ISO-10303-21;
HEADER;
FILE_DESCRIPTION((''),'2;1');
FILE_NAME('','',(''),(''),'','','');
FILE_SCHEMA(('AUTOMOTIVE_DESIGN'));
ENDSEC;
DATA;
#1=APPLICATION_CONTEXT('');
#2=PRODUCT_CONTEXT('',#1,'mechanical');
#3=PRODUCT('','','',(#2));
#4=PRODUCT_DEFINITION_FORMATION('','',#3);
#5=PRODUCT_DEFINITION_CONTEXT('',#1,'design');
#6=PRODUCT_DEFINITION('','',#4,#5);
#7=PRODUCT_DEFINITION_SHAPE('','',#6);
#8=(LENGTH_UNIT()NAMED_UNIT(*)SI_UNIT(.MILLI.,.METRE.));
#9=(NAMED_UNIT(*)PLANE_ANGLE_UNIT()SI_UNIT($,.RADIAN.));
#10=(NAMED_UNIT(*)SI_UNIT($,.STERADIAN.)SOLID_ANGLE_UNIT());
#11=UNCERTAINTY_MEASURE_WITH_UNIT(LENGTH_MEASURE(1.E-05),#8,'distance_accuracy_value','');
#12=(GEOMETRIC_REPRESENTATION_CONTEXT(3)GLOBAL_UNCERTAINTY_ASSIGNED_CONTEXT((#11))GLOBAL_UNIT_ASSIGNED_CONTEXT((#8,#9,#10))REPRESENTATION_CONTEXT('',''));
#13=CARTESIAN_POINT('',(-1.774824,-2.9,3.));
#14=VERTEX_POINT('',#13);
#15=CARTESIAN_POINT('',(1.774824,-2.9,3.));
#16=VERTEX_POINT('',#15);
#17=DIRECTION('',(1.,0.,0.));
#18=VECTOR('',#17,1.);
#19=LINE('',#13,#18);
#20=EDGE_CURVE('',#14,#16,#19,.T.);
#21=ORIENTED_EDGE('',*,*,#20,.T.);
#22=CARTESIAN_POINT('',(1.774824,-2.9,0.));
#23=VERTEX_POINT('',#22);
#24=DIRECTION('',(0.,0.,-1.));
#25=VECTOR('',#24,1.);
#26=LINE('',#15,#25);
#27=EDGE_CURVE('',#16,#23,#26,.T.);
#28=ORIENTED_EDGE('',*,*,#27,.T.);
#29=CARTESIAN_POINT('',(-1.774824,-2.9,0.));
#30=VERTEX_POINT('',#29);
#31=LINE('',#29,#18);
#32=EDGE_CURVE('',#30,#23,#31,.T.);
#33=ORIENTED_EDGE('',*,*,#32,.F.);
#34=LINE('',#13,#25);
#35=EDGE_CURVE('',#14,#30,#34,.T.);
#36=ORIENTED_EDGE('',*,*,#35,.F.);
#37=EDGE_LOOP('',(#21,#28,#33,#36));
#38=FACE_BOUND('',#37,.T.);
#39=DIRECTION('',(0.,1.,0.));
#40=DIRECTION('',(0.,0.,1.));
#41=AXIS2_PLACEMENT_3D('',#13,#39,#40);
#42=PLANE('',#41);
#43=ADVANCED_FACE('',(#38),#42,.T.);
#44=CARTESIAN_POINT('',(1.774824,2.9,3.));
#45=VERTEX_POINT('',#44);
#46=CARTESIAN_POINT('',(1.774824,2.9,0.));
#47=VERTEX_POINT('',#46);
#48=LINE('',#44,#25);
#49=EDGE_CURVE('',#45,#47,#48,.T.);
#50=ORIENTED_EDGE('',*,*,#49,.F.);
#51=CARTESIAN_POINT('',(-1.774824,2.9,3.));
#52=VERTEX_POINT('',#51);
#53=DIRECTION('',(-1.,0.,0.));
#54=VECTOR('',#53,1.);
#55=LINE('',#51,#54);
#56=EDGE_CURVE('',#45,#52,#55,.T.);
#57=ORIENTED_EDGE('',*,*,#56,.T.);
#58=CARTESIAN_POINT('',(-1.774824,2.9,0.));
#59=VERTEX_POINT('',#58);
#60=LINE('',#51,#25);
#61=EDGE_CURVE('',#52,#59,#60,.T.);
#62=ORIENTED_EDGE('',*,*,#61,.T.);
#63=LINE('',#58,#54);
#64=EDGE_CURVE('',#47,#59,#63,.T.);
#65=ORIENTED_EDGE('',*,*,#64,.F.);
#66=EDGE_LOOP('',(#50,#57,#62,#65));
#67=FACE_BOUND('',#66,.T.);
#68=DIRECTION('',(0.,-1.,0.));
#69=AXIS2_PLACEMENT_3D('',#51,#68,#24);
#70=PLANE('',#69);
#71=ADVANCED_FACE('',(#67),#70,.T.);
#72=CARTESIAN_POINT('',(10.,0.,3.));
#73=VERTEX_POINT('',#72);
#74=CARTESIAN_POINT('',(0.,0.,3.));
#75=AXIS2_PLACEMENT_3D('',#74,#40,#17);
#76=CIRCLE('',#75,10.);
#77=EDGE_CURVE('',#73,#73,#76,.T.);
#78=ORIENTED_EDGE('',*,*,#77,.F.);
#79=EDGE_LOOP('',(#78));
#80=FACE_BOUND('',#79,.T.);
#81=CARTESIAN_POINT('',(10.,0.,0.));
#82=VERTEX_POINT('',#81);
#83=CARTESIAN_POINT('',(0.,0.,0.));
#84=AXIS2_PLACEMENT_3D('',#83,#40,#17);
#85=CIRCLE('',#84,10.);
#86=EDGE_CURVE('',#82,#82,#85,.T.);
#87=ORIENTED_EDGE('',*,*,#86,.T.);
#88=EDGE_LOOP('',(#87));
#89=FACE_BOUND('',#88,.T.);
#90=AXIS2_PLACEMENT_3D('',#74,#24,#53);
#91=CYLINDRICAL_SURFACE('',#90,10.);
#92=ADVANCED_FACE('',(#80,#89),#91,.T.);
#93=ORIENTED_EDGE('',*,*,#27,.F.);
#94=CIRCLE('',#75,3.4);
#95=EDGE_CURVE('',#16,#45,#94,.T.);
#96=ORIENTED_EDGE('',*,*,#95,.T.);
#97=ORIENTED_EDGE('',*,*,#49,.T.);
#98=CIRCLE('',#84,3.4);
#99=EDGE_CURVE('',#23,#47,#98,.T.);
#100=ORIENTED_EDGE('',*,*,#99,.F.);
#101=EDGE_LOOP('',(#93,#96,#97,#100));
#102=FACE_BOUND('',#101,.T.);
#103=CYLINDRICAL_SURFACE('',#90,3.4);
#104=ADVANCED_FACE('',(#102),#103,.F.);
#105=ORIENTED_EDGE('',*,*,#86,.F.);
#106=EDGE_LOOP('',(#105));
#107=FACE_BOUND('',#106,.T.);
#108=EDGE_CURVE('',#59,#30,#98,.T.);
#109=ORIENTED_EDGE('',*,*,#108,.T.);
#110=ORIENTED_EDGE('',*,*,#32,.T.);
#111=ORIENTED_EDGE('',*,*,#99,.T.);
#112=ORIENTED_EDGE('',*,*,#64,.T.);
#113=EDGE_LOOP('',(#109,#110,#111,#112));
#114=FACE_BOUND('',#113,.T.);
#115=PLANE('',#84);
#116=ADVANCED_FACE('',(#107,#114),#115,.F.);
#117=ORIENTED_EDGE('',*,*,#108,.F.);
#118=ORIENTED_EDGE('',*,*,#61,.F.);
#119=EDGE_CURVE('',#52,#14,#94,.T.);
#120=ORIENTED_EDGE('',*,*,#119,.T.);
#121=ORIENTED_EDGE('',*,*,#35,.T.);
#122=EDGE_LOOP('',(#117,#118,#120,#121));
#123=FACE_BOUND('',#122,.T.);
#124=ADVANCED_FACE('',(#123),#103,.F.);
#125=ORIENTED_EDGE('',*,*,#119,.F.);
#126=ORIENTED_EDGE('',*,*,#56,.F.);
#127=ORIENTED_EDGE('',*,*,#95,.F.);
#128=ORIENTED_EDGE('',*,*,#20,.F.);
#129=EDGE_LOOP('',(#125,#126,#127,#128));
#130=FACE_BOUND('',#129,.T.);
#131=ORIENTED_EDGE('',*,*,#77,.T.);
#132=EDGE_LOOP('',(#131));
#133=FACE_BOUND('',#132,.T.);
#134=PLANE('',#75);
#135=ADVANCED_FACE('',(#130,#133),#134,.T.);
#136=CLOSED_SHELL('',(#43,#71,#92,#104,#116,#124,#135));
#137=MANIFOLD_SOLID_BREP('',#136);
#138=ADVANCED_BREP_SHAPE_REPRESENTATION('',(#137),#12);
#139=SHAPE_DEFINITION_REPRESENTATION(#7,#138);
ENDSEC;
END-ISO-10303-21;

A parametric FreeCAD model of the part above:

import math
import FreeCAD as App
import Part
import Sketcher

V = App.Vector

doc = App.newDocument("Part")
body = doc.addObject("PartDesign::Body", "Body")

# Sketch on XY plane
sketch1 = body.newObject("Sketcher::SketchObject", "Sketch")
sketch1.AttachmentSupport = (doc.getObject("XY_Plane"), [""])
sketch1.MapMode = "FlatFace"
sketch1.addGeometry([
    Part.Circle(V(0, 0, 0), V(0, 0, 1), 10),  # 0
    Part.ArcOfCircle(Part.Circle(V(0, 0, 0), V(0, 0, 1), 3.4), math.radians(121), math.radians(239)),  # 1
    Part.LineSegment(V(-1.8, 2.9, 0), V(1.8, 2.9, 0)),  # 2
    Part.ArcOfCircle(Part.Circle(V(0, 0, 0), V(0, 0, 1), 3.4), math.radians(-59), math.radians(59)),  # 3
    Part.LineSegment(V(1.8, -2.9, 0), V(-1.8, -2.9, 0)),  # 4
], False)
sketch1.addConstraint([
    Sketcher.Constraint("Coincident", 1, 1, 2, 1),
    Sketcher.Constraint("Coincident", 2, 2, 3, 2),
    Sketcher.Constraint("Coincident", 3, 1, 4, 1),
    Sketcher.Constraint("Coincident", 4, 2, 1, 2),
    Sketcher.Constraint("Horizontal", 2),
    Sketcher.Constraint("Horizontal", 4),
    Sketcher.Constraint("Coincident", 0, 3, -1, 1),
    Sketcher.Constraint("Coincident", 1, 3, -1, 1),
    Sketcher.Constraint("Coincident", 3, 3, -1, 1),
    Sketcher.Constraint("Equal", 1, 3),
    Sketcher.Constraint("Vertical", 2, 2, 3, 1),
    Sketcher.Constraint("Diameter", 0, 20.0),
    Sketcher.Constraint("Radius", 1, 3.4),
    Sketcher.Constraint("DistanceY", -1, 1, 1, 1, 2.9),
])
pad1 = body.newObject("PartDesign::Pad", "Pad")
pad1.Profile = sketch1
pad1.Length = 3

doc.recompute()
